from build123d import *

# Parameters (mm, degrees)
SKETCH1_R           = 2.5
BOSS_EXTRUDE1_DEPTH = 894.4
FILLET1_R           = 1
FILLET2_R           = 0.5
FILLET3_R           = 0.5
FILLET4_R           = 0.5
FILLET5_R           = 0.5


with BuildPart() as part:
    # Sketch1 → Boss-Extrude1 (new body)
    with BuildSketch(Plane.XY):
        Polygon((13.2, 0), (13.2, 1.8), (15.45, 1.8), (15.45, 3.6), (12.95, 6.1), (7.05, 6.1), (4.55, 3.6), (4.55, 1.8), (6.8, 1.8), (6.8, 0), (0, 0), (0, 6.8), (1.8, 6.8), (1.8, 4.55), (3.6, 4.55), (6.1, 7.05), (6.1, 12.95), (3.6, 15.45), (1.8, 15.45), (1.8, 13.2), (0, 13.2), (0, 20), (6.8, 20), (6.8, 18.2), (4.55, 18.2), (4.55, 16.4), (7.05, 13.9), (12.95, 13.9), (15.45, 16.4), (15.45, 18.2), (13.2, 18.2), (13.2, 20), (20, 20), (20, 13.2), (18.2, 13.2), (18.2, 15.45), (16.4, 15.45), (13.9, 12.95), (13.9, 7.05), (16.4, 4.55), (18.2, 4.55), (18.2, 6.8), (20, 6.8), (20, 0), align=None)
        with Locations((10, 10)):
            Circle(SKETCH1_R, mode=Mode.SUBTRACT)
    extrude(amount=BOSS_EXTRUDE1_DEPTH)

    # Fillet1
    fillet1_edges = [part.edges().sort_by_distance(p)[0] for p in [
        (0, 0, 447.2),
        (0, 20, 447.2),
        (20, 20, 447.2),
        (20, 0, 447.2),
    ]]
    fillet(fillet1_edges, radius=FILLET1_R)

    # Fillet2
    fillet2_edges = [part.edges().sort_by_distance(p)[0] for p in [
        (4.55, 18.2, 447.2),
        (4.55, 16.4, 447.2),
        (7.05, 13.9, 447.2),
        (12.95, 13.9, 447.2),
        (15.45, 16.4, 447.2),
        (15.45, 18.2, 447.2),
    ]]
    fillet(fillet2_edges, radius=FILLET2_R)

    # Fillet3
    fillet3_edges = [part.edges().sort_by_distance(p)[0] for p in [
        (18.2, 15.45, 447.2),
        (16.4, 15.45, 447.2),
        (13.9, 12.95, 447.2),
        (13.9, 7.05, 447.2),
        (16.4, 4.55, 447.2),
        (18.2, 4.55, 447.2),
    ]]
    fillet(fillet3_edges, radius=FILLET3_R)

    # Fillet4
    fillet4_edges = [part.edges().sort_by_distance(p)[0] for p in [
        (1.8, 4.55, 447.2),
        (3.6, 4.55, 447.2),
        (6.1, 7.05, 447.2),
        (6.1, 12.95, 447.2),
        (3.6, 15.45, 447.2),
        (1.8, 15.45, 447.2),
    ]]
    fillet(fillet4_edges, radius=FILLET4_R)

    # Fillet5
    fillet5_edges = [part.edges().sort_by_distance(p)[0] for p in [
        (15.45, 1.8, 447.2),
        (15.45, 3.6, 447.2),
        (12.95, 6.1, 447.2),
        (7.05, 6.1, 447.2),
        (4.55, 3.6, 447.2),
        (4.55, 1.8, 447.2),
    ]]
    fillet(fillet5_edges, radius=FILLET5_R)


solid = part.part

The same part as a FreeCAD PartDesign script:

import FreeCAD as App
import Part
import Sketcher
from FreeCAD import Vector


def edges_at(feature, points):
    """Names of the edges that pass closest to the given points."""
    edges = feature.Shape.Edges
    near = lambda p: min(range(len(edges)), key=lambda i: edges[i].distToShape(Part.Vertex(*p))[0])
    return sorted({f"Edge{near(p) + 1}" for p in points})


def add_polygon(sketch, points):
    """Adds a closed chain of lines whose ends are joined by coincident constraints."""
    first, n = sketch.GeometryCount, len(points)
    for a, b in zip(points, points[1:] + points[:1]):
        sketch.addGeometry(Part.LineSegment(App.Vector(*a, 0), App.Vector(*b, 0)), False)
    for i in range(n):
        sketch.addConstraint(Sketcher.Constraint("Coincident", first + i, 2, first + (i + 1) % n, 1))

doc = App.newDocument("Part")
params = doc.addObject("Spreadsheet::Sheet", "Params")
for row, (alias, value) in enumerate([
    ("sketch1_diameter", "5 mm"),
    ("sketch1_width", "6.8 mm"),
    ("sketch1_width2", "1.8 mm"),
    ("sketch1_width3", "5.9 mm"),
    ("sketch1_width4", "2.25 mm"),
    ("pad1_length", "894.4 mm"),
    ("fillet_radius", "1 mm"),
    ("fillet2_radius", "0.5 mm"),
    ("fillet3_radius", "0.5 mm"),
    ("fillet4_radius", "0.5 mm"),
    ("fillet5_radius", "0.5 mm"),
], start=1):
    params.set(f"A{row}", alias)
    params.set(f"B{row}", "=" + value)
    params.setAlias(f"B{row}", alias)

body = doc.addObject("PartDesign::Body", "Body")

sketch1 = doc.addObject("Sketcher::SketchObject", "Sketch")
body.addObject(sketch1)
sketch1.AttachmentSupport = (doc.XY_Plane, [""])
sketch1.MapMode = "FlatFace"
add_polygon(sketch1, [(13.2, 1.8), (13.2, 0), (20, 0), (20, 6.8), (18.2, 6.8), (18.2, 4.5), (16.4, 4.5), (13.9, 7), (13.9, 12.9), (16.4, 15.4), (18.2, 15.4), (18.2, 13.2), (20, 13.2), (20, 20), (13.2, 20), (13.2, 18.2), (15.4, 18.2), (15.4, 16.4), (12.9, 13.9), (7, 13.9), (4.5, 16.4), (4.5, 18.2), (6.8, 18.2), (6.8, 20), (0, 20), (0, 13.2), (1.8, 13.2), (1.8, 15.4), (3.6, 15.4), (6.1, 12.9), (6.1, 7), (3.6, 4.5), (1.8, 4.5), (1.8, 6.8), (0, 6.8), (0, 0), (6.8, 0), (6.8, 1.8), (4.5, 1.8), (4.5, 3.6), (7, 6.1), (12.9, 6.1), (15.4, 3.6), (15.4, 1.8)])
sketch1.addGeometry(Part.Circle(Vector(10, 10, 0), Vector(0, 0, 1), 2.5), False)
sketch1.addConstraint(Sketcher.Constraint("Vertical", 0))
sketch1.addConstraint(Sketcher.Constraint("Horizontal", 1))
sketch1.addConstraint(Sketcher.Constraint("Vertical", 2))
sketch1.addConstraint(Sketcher.Constraint("Horizontal", 3))
sketch1.addConstraint(Sketcher.Constraint("Vertical", 4))
sketch1.addConstraint(Sketcher.Constraint("Horizontal", 5))
sketch1.addConstraint(Sketcher.Constraint("Vertical", 7))
sketch1.addConstraint(Sketcher.Constraint("Horizontal", 9))
sketch1.addConstraint(Sketcher.Constraint("Vertical", 10))
sketch1.addConstraint(Sketcher.Constraint("Horizontal", 11))
sketch1.addConstraint(Sketcher.Constraint("Vertical", 12))
sketch1.addConstraint(Sketcher.Constraint("Horizontal", 13))
sketch1.addConstraint(Sketcher.Constraint("Vertical", 14))
sketch1.addConstraint(Sketcher.Constraint("Horizontal", 15))
sketch1.addConstraint(Sketcher.Constraint("Vertical", 16))
sketch1.addConstraint(Sketcher.Constraint("Horizontal", 18))
sketch1.addConstraint(Sketcher.Constraint("Vertical", 20))
sketch1.addConstraint(Sketcher.Constraint("Horizontal", 21))
sketch1.addConstraint(Sketcher.Constraint("Vertical", 22))
sketch1.addConstraint(Sketcher.Constraint("Horizontal", 23))
sketch1.addConstraint(Sketcher.Constraint("Vertical", 24))
sketch1.addConstraint(Sketcher.Constraint("Horizontal", 25))
sketch1.addConstraint(Sketcher.Constraint("Vertical", 26))
sketch1.addConstraint(Sketcher.Constraint("Horizontal", 27))
sketch1.addConstraint(Sketcher.Constraint("Vertical", 29))
sketch1.addConstraint(Sketcher.Constraint("Horizontal", 31))
sketch1.addConstraint(Sketcher.Constraint("Vertical", 32))
sketch1.addConstraint(Sketcher.Constraint("Horizontal", 33))
sketch1.addConstraint(Sketcher.Constraint("Vertical", 34))
sketch1.addConstraint(Sketcher.Constraint("Horizontal", 35))
sketch1.addConstraint(Sketcher.Constraint("Vertical", 36))
sketch1.addConstraint(Sketcher.Constraint("Horizontal", 37))
sketch1.addConstraint(Sketcher.Constraint("Vertical", 38))
sketch1.addConstraint(Sketcher.Constraint("Horizontal", 40))
sketch1.addConstraint(Sketcher.Constraint("Vertical", 42))
sketch1.addConstraint(Sketcher.Constraint("Horizontal", 43))
sketch1.addConstraint(Sketcher.Constraint("Coincident", 34, 2, -1, 1))
sketch1.addConstraint(Sketcher.Constraint("PointOnObject", 0, 2, -1))
sketch1.addConstraint(Sketcher.Constraint("PointOnObject", 23, 2, -2))
sketch1.addConstraint(Sketcher.Constraint("Perpendicular", 6, 8))
sketch1.addConstraint(Sketcher.Constraint("Parallel", 8, 17))
sketch1.addConstraint(Sketcher.Constraint("Perpendicular", 17, 19))
sketch1.addConstraint(Sketcher.Constraint("Parallel", 19, 28))
sketch1.addConstraint(Sketcher.Constraint("Perpendicular", 28, 30))
sketch1.addConstraint(Sketcher.Constraint("Parallel", 30, 39))
sketch1.addConstraint(Sketcher.Constraint("Perpendicular", 39, 41))
sketch1.addConstraint(Sketcher.Constraint("Horizontal", 16, 2, 19, 2))
sketch1.addConstraint(Sketcher.Constraint("Horizontal", 15, 2, 20, 2))
sketch1.addConstraint(Sketcher.Constraint("Horizontal", 13, 2, 22, 2))
sketch1.addConstraint(Sketcher.Constraint("Horizontal", 11, 2, 24, 2))
sketch1.addConstraint(Sketcher.Constraint("Horizontal", 9, 2, 26, 2))
sketch1.addConstraint(Sketcher.Constraint("Horizontal", 7, 2, 28, 2))
sketch1.addConstraint(Sketcher.Constraint("Horizontal", 6, 2, 29, 2))
sketch1.addConstraint(Sketcher.Constraint("Horizontal", 5, 2, 30, 2))
sketch1.addConstraint(Sketcher.Constraint("Horizontal", 3, 2, 32, 2))
sketch1.addConstraint(Sketcher.Constraint("Horizontal", 38, 2, 41, 2))
sketch1.addConstraint(Sketcher.Constraint("Horizontal", 37, 2, 42, 2))
sketch1.addConstraint(Sketcher.Constraint("Vertical", 5, 2, 8, 2))
sketch1.addConstraint(Sketcher.Constraint("Vertical", 4, 2, 9, 2))
sketch1.addConstraint(Sketcher.Constraint("Vertical", 2, 2, 11, 2))
sketch1.addConstraint(Sketcher.Constraint("Vertical", 0, 2, 13, 2))
sketch1.addConstraint(Sketcher.Constraint("Vertical", 27, 2, 30, 2))
sketch1.addConstraint(Sketcher.Constraint("Vertical", 26, 2, 31, 2))
sketch1.addConstraint(Sketcher.Constraint("Vertical", 22, 2, 35, 2))
sketch1.addConstraint(Sketcher.Constraint("Vertical", 20, 2, 37, 2))
sketch1.addConstraint(Sketcher.Constraint("Vertical", 18, 2, 39, 2))
sketch1.addConstraint(Sketcher.Constraint("Vertical", 17, 2, 40, 2))
sketch1.addConstraint(Sketcher.Constraint("Equal", 3, 5))
sketch1.addConstraint(Sketcher.Constraint("Equal", 15, 21))
sketch1.addConstraint(Sketcher.Constraint("Equal", 13, 23))
sketch1.addConstraint(Sketcher.Constraint("Equal", 11, 25))
sketch1.addConstraint(Sketcher.Constraint("Equal", 25, 27))
sketch1.addConstraint(Sketcher.Constraint("Equal", 33, 0))
sketch1.addConstraint(Sketcher.Constraint("Equal", 35, 2))
sketch1.addConstraint(Sketcher.Constraint("Equal", 43, 4))
sketch1.addConstraint(Sketcher.Constraint("Equal", 40, 7))
sketch1.addConstraint(Sketcher.Constraint("Equal", 4, 10))
sketch1.addConstraint(Sketcher.Constraint("Equal", 2, 12))
sketch1.addConstraint(Sketcher.Constraint("Equal", 0, 14))
sketch1.addConstraint(Sketcher.Constraint("Equal", 14, 16))
sketch1.addConstraint(Sketcher.Constraint("Equal", 36, 38))
sketch1.addConstraint(Sketcher.Constraint("Equal", 8, 17))
sketch1.addConstraint(Sketcher.Constraint("Diameter", 44, 5.0))
sketch1.addConstraint(Sketcher.Constraint("DistanceX", 1, 1, 1, 2, 6.8))
sketch1.addConstraint(Sketcher.Constraint("DistanceX", 3, 2, 3, 1, 1.8))
sketch1.addConstraint(Sketcher.Constraint("DistanceX", 18, 2, 18, 1, 5.9))
sketch1.addConstraint(Sketcher.Constraint("DistanceX", -1, 1, 44, 3, 10.0))
sketch1.addConstraint(Sketcher.Constraint("DistanceY", -1, 1, 44, 3, 10.0))
sketch1.addConstraint(Sketcher.Constraint("DistanceX", -1, 1, 1, 2, 20.0))
sketch1.addConstraint(Sketcher.Constraint("DistanceX", 15, 1, 15, 2, 2.25))
sketch1.setExpression("Constraints[126]", "Params.sketch1_diameter")
sketch1.setExpression("Constraints[127]", "Params.sketch1_width")
sketch1.setExpression("Constraints[128]", "Params.sketch1_width2")
sketch1.setExpression("Constraints[129]", "Params.sketch1_width3")
sketch1.setExpression("Constraints[133]", "Params.sketch1_width4")
pad1 = doc.addObject("PartDesign::Pad", "Pad")
body.addObject(pad1)
pad1.Profile = sketch1
pad1.setExpression("Length", "Params.pad1_length")
doc.recompute()

fillet = doc.addObject("PartDesign::Fillet", "Fillet")
body.addObject(fillet)
fillet.Base = (pad1, edges_at(pad1, [
    (0, 0, 447.2),
    (0, 20, 447.2),
    (20, 20, 447.2),
    (20, 0, 447.2),
]))
fillet.setExpression("Radius", "Params.fillet_radius")
doc.recompute()

fillet2 = doc.addObject("PartDesign::Fillet", "Fillet001")
body.addObject(fillet2)
fillet2.Base = (fillet, edges_at(fillet, [
    (4.55, 18.2, 447.2),
    (4.55, 16.4, 447.2),
    (7.05, 13.9, 447.2),
    (12.95, 13.9, 447.2),
    (15.45, 16.4, 447.2),
    (15.45, 18.2, 447.2),
]))
fillet2.setExpression("Radius", "Params.fillet2_radius")
doc.recompute()

fillet3 = doc.addObject("PartDesign::Fillet", "Fillet002")
body.addObject(fillet3)
fillet3.Base = (fillet2, edges_at(fillet2, [
    (18.2, 15.45, 447.2),
    (16.4, 15.45, 447.2),
    (13.9, 12.95, 447.2),
    (13.9, 7.05, 447.2),
    (16.4, 4.55, 447.2),
    (18.2, 4.55, 447.2),
]))
fillet3.setExpression("Radius", "Params.fillet3_radius")
doc.recompute()

fillet4 = doc.addObject("PartDesign::Fillet", "Fillet003")
body.addObject(fillet4)
fillet4.Base = (fillet3, edges_at(fillet3, [
    (1.8, 4.55, 447.2),
    (3.6, 4.55, 447.2),
    (6.1, 7.05, 447.2),
    (6.1, 12.95, 447.2),
    (3.6, 15.45, 447.2),
    (1.8, 15.45, 447.2),
]))
fillet4.setExpression("Radius", "Params.fillet4_radius")
doc.recompute()

fillet5 = doc.addObject("PartDesign::Fillet", "Fillet004")
body.addObject(fillet5)
fillet5.Base = (fillet4, edges_at(fillet4, [
    (15.45, 1.8, 447.2),
    (15.45, 3.6, 447.2),
    (12.95, 6.1, 447.2),
    (7.05, 6.1, 447.2),
    (4.55, 3.6, 447.2),
    (4.55, 1.8, 447.2),
]))
fillet5.setExpression("Radius", "Params.fillet5_radius")

doc.recompute()
